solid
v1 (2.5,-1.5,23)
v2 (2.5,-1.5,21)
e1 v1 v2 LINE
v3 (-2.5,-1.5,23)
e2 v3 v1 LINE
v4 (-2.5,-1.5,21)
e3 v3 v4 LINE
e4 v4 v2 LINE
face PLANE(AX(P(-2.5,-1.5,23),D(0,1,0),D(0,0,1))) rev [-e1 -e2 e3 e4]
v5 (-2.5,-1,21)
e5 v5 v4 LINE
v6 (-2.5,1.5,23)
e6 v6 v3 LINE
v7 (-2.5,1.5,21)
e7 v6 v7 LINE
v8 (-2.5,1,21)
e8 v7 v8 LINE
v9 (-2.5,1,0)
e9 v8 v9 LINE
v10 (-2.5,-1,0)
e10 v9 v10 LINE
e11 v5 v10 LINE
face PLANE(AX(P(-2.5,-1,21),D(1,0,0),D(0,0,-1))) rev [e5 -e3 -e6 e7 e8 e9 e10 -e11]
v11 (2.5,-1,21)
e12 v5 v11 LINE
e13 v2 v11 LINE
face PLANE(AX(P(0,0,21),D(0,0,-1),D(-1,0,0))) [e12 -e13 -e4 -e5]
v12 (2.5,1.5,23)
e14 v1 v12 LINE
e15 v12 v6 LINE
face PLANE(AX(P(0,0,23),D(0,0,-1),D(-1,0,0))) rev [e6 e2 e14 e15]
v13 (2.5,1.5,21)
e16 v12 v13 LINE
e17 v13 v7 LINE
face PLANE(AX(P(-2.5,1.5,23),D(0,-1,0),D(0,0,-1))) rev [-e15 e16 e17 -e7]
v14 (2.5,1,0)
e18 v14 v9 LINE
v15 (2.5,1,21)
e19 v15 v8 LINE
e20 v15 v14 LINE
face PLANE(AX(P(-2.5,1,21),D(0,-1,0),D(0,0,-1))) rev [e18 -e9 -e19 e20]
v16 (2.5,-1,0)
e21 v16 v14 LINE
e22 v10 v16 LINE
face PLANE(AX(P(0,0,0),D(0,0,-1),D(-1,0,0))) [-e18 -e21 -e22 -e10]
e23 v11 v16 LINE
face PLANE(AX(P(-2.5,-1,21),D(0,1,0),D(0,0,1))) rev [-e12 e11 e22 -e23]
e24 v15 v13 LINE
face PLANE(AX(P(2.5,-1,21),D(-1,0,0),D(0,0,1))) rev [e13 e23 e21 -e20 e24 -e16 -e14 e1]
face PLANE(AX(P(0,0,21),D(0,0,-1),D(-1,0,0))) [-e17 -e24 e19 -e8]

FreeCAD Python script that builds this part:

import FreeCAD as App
import Part
import Sketcher
from FreeCAD import Vector
Q = App.Units.Quantity


def add_polygon(sketch, points):
    """Adds a closed chain of lines whose ends are joined by coincident constraints."""
    first, n = sketch.GeometryCount, len(points)
    for a, b in zip(points, points[1:] + points[:1]):
        sketch.addGeometry(Part.LineSegment(App.Vector(*a, 0), App.Vector(*b, 0)), False)
    for i in range(n):
        sketch.addConstraint(Sketcher.Constraint("Coincident", first + i, 2, first + (i + 1) % n, 1))

doc = App.newDocument("Part")
body = doc.addObject("PartDesign::Body", "Body")

# Sketch on XY plane
sketch1 = doc.addObject("Sketcher::SketchObject", "Sketch")
body.addObject(sketch1)
sketch1.AttachmentSupport = (doc.XY_Plane, [""])
sketch1.MapMode = "FlatFace"
add_polygon(sketch1, [(-2.5, 1), (-2.5, -1), (2.5, -1), (2.5, 1)])  # lines 0-3
sketch1.addConstraint(Sketcher.Constraint("Vertical", 0))
sketch1.addConstraint(Sketcher.Constraint("Horizontal", 1))
sketch1.addConstraint(Sketcher.Constraint("Vertical", 2))
sketch1.addConstraint(Sketcher.Constraint("Horizontal", 3))
sketch1.addConstraint(Sketcher.Constraint("Symmetric", 0, 2, 2, 2, -1, 1))
sketch1.addConstraint(Sketcher.Constraint("DistanceX", 1, 1, 1, 2, Q("5 mm")))
sketch1.addConstraint(Sketcher.Constraint("DistanceY", 0, 2, 0, 1, Q("2 mm")))
pad1 = doc.addObject("PartDesign::Pad", "Pad")
body.addObject(pad1)
pad1.Profile = sketch1
pad1.Length = 21

# Sketch on XY plane
sketch2 = doc.addObject("Sketcher::SketchObject", "Sketch001")
body.addObject(sketch2)
sketch2.AttachmentSupport = (doc.XY_Plane, [""])
sketch2.MapMode = "FlatFace"
sketch2.AttachmentOffset = App.Placement(Vector(0, 0, 21), App.Rotation())
add_polygon(sketch2, [(-2.5, 1.5), (-2.5, -1.5), (2.5, -1.5), (2.5, 1.5)])  # lines 0-3
sketch2.addConstraint(Sketcher.Constraint("Vertical", 0))
sketch2.addConstraint(Sketcher.Constraint("Horizontal", 1))
sketch2.addConstraint(Sketcher.Constraint("Vertical", 2))
sketch2.addConstraint(Sketcher.Constraint("Horizontal", 3))
sketch2.addConstraint(Sketcher.Constraint("Symmetric", 0, 2, 2, 2, -1, 1))
sketch2.addConstraint(Sketcher.Constraint("DistanceX", 1, 1, 1, 2, Q("5 mm")))
sketch2.addConstraint(Sketcher.Constraint("DistanceY", 0, 2, 0, 1, Q("3 mm")))
pad2 = doc.addObject("PartDesign::Pad", "Pad001")
body.addObject(pad2)
pad2.Profile = sketch2
pad2.Length = 2

doc.recompute()
